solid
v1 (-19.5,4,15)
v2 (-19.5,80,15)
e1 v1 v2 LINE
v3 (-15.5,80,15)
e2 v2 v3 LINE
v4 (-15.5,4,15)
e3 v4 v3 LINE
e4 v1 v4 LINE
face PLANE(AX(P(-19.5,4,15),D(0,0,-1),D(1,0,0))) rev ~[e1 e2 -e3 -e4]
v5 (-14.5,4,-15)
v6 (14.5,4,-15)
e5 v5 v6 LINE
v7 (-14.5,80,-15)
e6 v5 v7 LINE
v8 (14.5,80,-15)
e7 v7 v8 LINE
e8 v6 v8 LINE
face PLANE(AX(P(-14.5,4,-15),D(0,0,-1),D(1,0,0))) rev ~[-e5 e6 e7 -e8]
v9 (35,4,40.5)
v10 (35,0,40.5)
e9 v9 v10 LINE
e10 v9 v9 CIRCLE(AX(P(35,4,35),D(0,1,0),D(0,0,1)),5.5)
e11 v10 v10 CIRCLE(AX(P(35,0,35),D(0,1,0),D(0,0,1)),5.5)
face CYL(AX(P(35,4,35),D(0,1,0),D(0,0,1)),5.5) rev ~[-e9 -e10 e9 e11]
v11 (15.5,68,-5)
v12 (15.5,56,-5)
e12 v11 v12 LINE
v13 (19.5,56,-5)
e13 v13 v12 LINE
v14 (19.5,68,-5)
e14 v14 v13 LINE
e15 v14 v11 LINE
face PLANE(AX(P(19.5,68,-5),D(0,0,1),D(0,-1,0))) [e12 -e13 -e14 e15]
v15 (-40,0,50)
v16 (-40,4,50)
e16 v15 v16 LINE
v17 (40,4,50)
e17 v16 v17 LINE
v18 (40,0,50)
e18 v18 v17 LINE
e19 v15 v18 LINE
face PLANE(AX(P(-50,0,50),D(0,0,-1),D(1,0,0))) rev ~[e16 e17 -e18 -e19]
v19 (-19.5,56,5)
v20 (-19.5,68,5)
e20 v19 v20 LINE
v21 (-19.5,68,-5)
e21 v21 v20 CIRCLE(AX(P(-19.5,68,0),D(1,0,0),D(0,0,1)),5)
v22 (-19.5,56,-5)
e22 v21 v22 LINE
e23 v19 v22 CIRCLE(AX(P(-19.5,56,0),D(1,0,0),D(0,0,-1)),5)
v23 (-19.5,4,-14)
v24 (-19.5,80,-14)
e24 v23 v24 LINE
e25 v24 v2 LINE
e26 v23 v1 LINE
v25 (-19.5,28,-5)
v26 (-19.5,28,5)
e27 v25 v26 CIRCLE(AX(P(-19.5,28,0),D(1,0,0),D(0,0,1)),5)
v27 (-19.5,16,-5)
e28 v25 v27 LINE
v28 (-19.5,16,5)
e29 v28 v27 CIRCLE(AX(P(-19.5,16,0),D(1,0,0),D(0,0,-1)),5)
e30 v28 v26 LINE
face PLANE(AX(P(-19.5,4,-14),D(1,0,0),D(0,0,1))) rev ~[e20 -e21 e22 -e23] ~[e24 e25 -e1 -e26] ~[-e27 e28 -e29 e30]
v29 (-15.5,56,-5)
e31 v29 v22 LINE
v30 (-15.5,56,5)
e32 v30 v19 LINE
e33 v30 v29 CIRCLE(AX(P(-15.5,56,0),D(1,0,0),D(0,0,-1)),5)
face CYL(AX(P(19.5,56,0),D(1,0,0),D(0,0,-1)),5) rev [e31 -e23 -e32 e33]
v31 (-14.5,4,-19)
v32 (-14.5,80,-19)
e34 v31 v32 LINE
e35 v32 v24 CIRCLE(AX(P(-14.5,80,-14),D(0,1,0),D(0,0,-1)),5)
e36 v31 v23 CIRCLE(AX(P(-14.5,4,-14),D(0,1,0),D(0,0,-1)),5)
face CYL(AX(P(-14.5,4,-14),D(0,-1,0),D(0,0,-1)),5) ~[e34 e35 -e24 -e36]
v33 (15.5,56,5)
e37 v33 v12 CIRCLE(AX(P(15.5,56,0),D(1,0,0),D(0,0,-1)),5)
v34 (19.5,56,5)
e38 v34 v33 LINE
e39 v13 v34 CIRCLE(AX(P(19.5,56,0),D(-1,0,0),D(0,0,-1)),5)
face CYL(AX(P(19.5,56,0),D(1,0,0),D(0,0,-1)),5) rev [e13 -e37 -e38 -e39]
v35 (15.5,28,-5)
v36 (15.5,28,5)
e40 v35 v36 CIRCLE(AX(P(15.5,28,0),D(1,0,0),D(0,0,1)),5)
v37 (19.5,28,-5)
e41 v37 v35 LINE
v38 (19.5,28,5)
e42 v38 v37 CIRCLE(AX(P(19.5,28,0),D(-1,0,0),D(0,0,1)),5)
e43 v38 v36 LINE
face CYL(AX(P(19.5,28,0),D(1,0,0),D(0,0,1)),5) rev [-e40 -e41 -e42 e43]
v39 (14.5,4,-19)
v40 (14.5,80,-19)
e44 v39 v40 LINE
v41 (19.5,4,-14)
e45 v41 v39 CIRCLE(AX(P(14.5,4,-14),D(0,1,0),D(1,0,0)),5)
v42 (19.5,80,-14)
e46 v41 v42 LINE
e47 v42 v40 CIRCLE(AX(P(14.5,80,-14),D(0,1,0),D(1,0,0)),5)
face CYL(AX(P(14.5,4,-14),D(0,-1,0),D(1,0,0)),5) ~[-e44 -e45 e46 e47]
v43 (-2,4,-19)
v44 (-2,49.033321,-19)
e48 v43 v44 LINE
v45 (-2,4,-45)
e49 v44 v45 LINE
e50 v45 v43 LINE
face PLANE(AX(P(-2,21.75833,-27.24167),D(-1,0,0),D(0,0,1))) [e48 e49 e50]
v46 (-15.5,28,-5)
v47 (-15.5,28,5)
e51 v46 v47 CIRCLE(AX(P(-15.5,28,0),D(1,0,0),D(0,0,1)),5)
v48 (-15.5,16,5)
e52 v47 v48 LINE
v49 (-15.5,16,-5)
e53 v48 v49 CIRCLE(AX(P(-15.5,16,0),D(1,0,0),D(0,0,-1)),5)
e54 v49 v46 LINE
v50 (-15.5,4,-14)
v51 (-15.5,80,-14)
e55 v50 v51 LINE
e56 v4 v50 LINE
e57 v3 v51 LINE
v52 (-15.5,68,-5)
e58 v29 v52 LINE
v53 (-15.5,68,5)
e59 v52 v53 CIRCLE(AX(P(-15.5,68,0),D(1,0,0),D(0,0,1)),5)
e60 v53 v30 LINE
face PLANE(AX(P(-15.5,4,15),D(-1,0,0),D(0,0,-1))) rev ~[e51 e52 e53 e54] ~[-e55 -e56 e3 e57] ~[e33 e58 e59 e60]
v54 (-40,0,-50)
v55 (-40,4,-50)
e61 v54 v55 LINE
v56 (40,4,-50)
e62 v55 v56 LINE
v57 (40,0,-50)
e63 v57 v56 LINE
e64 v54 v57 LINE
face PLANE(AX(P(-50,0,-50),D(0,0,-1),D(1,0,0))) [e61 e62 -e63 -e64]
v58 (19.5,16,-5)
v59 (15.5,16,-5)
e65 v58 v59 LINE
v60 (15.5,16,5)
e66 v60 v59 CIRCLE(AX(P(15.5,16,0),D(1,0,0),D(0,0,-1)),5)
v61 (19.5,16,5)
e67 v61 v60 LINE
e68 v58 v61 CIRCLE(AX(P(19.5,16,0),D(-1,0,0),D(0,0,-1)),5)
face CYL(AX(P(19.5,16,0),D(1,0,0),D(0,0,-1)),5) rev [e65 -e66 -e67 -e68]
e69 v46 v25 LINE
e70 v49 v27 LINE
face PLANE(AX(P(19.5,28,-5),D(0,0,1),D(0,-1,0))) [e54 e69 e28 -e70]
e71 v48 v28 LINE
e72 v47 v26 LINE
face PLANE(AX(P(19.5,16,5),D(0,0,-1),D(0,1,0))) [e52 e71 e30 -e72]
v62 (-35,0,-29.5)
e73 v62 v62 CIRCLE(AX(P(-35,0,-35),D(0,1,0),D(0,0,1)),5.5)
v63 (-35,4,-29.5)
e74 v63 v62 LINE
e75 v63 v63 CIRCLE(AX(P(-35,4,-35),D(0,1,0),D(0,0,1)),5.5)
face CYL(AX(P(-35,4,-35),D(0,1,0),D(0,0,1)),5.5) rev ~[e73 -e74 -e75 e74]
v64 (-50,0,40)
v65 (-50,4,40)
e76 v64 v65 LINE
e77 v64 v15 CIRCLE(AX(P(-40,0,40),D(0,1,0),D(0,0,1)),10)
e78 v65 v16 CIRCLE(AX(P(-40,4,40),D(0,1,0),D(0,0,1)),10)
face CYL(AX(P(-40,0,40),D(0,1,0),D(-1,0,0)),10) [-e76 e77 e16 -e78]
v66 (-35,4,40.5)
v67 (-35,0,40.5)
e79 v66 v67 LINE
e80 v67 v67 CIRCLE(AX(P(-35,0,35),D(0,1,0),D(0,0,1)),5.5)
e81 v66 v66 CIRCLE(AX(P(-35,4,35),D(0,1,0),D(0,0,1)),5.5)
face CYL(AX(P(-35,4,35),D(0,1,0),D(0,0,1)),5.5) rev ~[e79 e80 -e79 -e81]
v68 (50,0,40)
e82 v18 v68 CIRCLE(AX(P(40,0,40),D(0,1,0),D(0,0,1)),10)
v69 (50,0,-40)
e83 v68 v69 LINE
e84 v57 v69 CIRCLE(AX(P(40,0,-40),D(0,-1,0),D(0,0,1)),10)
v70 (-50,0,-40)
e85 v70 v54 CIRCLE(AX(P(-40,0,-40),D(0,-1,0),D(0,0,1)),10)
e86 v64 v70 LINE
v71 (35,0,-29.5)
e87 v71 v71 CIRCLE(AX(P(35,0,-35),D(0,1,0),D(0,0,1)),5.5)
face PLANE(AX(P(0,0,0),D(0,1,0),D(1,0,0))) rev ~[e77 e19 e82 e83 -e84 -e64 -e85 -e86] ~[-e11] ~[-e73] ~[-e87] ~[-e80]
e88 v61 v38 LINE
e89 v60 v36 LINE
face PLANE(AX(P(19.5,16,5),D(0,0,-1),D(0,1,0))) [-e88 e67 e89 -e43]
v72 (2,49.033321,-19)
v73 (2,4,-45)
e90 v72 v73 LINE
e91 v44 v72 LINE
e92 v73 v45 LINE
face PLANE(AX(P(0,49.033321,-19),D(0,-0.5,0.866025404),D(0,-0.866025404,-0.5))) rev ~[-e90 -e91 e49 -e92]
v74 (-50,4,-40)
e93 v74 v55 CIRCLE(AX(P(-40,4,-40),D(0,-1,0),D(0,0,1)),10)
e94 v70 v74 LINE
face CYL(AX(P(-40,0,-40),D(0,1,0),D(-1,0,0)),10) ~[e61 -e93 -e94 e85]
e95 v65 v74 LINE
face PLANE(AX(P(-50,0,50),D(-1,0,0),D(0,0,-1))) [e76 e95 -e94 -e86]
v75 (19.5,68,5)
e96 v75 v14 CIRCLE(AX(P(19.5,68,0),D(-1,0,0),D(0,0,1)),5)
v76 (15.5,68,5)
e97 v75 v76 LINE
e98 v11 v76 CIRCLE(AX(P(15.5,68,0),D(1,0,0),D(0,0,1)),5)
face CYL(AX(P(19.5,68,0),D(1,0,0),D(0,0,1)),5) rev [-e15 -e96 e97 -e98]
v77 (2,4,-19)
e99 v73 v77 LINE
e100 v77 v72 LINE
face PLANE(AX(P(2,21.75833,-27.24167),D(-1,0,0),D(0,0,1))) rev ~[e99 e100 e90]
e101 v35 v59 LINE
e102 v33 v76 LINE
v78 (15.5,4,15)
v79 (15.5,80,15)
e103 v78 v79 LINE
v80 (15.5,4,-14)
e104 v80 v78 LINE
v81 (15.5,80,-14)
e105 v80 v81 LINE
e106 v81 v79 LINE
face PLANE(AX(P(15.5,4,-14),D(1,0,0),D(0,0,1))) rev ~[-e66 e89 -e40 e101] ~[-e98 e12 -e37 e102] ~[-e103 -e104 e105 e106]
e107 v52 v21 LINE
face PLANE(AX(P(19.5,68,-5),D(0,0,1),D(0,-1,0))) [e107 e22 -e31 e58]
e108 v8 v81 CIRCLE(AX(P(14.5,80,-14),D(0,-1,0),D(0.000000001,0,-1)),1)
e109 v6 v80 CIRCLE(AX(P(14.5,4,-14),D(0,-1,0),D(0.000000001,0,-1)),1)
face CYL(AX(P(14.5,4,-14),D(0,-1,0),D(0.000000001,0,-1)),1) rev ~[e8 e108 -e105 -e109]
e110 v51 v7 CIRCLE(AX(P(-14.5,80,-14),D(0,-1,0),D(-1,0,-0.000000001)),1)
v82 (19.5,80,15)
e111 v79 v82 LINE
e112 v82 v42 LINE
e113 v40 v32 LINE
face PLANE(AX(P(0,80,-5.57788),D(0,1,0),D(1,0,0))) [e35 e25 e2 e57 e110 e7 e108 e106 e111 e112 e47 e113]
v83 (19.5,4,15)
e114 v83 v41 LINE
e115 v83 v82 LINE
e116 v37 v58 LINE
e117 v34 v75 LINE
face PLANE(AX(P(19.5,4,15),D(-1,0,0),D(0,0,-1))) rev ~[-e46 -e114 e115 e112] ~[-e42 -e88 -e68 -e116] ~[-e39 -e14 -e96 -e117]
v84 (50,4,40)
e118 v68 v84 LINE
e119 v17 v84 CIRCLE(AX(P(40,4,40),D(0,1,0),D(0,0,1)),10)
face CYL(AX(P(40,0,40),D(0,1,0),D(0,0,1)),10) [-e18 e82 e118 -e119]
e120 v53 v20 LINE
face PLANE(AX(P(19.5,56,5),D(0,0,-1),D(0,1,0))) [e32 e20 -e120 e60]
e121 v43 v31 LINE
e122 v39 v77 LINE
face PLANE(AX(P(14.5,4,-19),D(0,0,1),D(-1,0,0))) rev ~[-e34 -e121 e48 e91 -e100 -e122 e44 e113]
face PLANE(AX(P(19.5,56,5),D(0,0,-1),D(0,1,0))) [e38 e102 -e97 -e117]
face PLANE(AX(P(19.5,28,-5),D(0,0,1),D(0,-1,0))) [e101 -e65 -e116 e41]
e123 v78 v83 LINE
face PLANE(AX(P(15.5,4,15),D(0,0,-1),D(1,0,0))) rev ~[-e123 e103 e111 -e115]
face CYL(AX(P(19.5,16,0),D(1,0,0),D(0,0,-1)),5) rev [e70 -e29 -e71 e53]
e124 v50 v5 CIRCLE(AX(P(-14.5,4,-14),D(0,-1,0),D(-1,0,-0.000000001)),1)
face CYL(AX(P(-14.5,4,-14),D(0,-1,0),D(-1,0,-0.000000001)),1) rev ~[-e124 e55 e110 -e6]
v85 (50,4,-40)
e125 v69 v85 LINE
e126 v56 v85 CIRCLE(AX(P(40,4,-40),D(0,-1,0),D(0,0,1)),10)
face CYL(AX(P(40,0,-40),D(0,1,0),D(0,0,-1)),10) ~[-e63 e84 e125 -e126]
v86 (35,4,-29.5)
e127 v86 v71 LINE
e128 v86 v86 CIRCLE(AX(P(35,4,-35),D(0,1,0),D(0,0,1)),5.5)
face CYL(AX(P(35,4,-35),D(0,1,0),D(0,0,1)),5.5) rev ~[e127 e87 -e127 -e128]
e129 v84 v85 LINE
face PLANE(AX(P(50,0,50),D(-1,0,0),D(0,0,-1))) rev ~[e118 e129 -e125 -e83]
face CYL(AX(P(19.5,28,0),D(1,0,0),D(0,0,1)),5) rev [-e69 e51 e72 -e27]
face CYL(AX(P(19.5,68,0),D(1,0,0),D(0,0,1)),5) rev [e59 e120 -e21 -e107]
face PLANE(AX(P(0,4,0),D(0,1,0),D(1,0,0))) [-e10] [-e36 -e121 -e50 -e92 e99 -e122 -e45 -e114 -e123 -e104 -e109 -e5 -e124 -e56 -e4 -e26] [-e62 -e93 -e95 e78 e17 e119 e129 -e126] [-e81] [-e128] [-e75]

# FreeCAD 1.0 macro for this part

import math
import FreeCAD as App
import Part
import Sketcher
from FreeCAD import Vector
Q = App.Units.Quantity


def edges_at(feature, points):
    """Names of the edges that pass closest to the given points."""
    edges = feature.Shape.Edges
    near = lambda p: min(range(len(edges)), key=lambda i: edges[i].distToShape(Part.Vertex(*p))[0])
    return sorted({f"Edge{near(p) + 1}" for p in points})


def add_polygon(sketch, points):
    """Adds a closed chain of lines whose ends are joined by coincident constraints."""
    first, n = sketch.GeometryCount, len(points)
    for a, b in zip(points, points[1:] + points[:1]):
        sketch.addGeometry(Part.LineSegment(App.Vector(*a, 0), App.Vector(*b, 0)), False)
    for i in range(n):
        sketch.addConstraint(Sketcher.Constraint("Coincident", first + i, 2, first + (i + 1) % n, 1))

doc = App.newDocument("Part")
body = doc.addObject("PartDesign::Body", "Body")

# Sketch on XZ plane
sketch1 = body.newObject("Sketcher::SketchObject", "Sketch")
sketch1.AttachmentSupport = (doc.getObject("XZ_Plane"), [""])
sketch1.MapMode = "FlatFace"
add_polygon(sketch1, [(-50, -50), (-50, 50), (50, 50), (50, -50)])  # lines 0-3
sketch1.addConstraint([
    Sketcher.Constraint("Vertical", 0),
    Sketcher.Constraint("Horizontal", 1),
    Sketcher.Constraint("Vertical", 2),
    Sketcher.Constraint("Horizontal", 3),
    Sketcher.Constraint("Symmetric", 0, 2, 2, 2, -1, 1),
    Sketcher.Constraint("Equal", 3, 0),
    Sketcher.Constraint("DistanceX", 1, 1, 1, 2, 100.0),
])
pad1 = body.newObject("PartDesign::Pad", "Pad")
pad1.Profile = sketch1
pad1.Length = 4
pad1.Reversed = True

# Sketch on XZ plane
sketch2 = body.newObject("Sketcher::SketchObject", "Sketch001")
sketch2.AttachmentSupport = (doc.getObject("XZ_Plane"), [""])
sketch2.MapMode = "FlatFace"
sketch2.AttachmentOffset = App.Placement(Vector(0, 0, -4), App.Rotation())
sketch2.addGeometry([
    Part.LineSegment(Vector(-15.5, 15, 0), Vector(-15.5, -14, 0)),  # 0
    Part.ArcOfCircle(Part.Circle(Vector(-14.5, -14, 0), Vector(0, 0, 1), 1), math.radians(-180), math.radians(-90)),  # 1
    Part.LineSegment(Vector(-14.5, -15, 0), Vector(14.5, -15, 0)),  # 2
    Part.ArcOfCircle(Part.Circle(Vector(14.5, -14, 0), Vector(0, 0, 1), 1), math.radians(-90), math.radians(0)),  # 3
    Part.LineSegment(Vector(15.5, -14, 0), Vector(15.5, 15, 0)),  # 4
    Part.LineSegment(Vector(15.5, 15, 0), Vector(19.5, 15, 0)),  # 5
    Part.LineSegment(Vector(19.5, 15, 0), Vector(19.5, -14, 0)),  # 6
    Part.ArcOfCircle(Part.Circle(Vector(14.5, -14, 0), Vector(0, 0, 1), 5), math.radians(-90), math.radians(0)),  # 7
    Part.LineSegment(Vector(14.5, -19, 0), Vector(-14.5, -19, 0)),  # 8
    Part.ArcOfCircle(Part.Circle(Vector(-14.5, -14, 0), Vector(0, 0, 1), 5), math.radians(180), math.radians(270)),  # 9
    Part.LineSegment(Vector(-19.5, -14, 0), Vector(-19.5, 15, 0)),  # 10
    Part.LineSegment(Vector(-19.5, 15, 0), Vector(-15.5, 15, 0)),  # 11
], False)
sketch2.addConstraint([
    Sketcher.Constraint("Tangent", 0, 2, 1, 1),
    Sketcher.Constraint("Tangent", 1, 2, 2, 1),
    Sketcher.Constraint("Tangent", 2, 2, 3, 1),
    Sketcher.Constraint("Tangent", 3, 2, 4, 1),
    Sketcher.Constraint("Coincident", 4, 2, 5, 1),
    Sketcher.Constraint("Coincident", 5, 2, 6, 1),
    Sketcher.Constraint("Tangent", 6, 2, 7, 2),
    Sketcher.Constraint("Tangent", 7, 1, 8, 1),
    Sketcher.Constraint("Tangent", 8, 2, 9, 2),
    Sketcher.Constraint("Tangent", 9, 1, 10, 1),
    Sketcher.Constraint("Coincident", 10, 2, 11, 1),
    Sketcher.Constraint("Coincident", 11, 2, 0, 1),
    Sketcher.Constraint("Vertical", 0),
    Sketcher.Constraint("Horizontal", 2),
    Sketcher.Constraint("Vertical", 4),
    Sketcher.Constraint("Horizontal", 5),
    Sketcher.Constraint("Vertical", 6),
    Sketcher.Constraint("Horizontal", 8),
    Sketcher.Constraint("Vertical", 10),
    Sketcher.Constraint("Horizontal", 11),
    Sketcher.Constraint("Coincident", 7, 3, 3, 3),
    Sketcher.Constraint("Coincident", 9, 3, 1, 3),
    Sketcher.Constraint("Equal", 1, 3),
    Sketcher.Constraint("Symmetric", 5, 2, 10, 2, -2),
    Sketcher.Constraint("Equal", 8, 0),
    Sketcher.Constraint("Radius", 1, 1.0),
    Sketcher.Constraint("Radius", 7, 5.0),
    Sketcher.Constraint("DistanceX", 2, 1, 2, 2, 29.0),
    Sketcher.Constraint("DistanceY", 1, 3, -1, 1, 14.0),
])
pad2 = body.newObject("PartDesign::Pad", "Pad001")
pad2.Profile = sketch2
pad2.Length = 76
pad2.Reversed = True

# Sketch on YZ plane
sketch3 = body.newObject("Sketcher::SketchObject", "Sketch002")
sketch3.AttachmentSupport = (doc.getObject("YZ_Plane"), [""])
sketch3.MapMode = "FlatFace"
add_polygon(sketch3, [(4, -45), (49, -19), (4, -19)])  # lines 0-2
sketch3.addConstraint([
    Sketcher.Constraint("Horizontal", 1),
    Sketcher.Constraint("Vertical", 2),
    Sketcher.Constraint("DistanceY", 2, 2, 2, 1, 26.0),
    Sketcher.Constraint("Angle", 0, Q("30 deg")),
    Sketcher.Constraint("DistanceY", 0, 2, -1, 1, 19.0),
    Sketcher.Constraint("DistanceX", -1, 1, 1, 2, 4.0),
])
pad3 = body.newObject("PartDesign::Pad", "Pad002")
pad3.Profile = sketch3
pad3.Length = 4
pad3.Midplane = True

# Sketch on YZ plane
sketch4 = body.newObject("Sketcher::SketchObject", "Sketch003")
sketch4.AttachmentSupport = (doc.getObject("YZ_Plane"), [""])
sketch4.MapMode = "FlatFace"
sketch4.AttachmentOffset = App.Placement(Vector(0, 0, 19.5), App.Rotation())
sketch4.addGeometry([
    Part.LineSegment(Vector(56, -5, 0), Vector(68, -5, 0)),  # 0
    Part.ArcOfCircle(Part.Circle(Vector(68, 0, 0), Vector(0, 0, 1), 5), math.radians(-90), math.radians(90)),  # 1
    Part.LineSegment(Vector(68, 5, 0), Vector(56, 5, 0)),  # 2
    Part.ArcOfCircle(Part.Circle(Vector(56, 0, 0), Vector(0, 0, 1), 5), math.radians(90), math.radians(270)),  # 3
    Part.LineSegment(Vector(16, -5, 0), Vector(28, -5, 0)),  # 4
    Part.ArcOfCircle(Part.Circle(Vector(28, 0, 0), Vector(0, 0, 1), 5), math.radians(-90), math.radians(90)),  # 5
    Part.LineSegment(Vector(28, 5, 0), Vector(16, 5, 0)),  # 6
    Part.ArcOfCircle(Part.Circle(Vector(16, 0, 0), Vector(0, 0, 1), 5), math.radians(90), math.radians(270)),  # 7
], False)
sketch4.addConstraint([
    Sketcher.Constraint("Tangent", 0, 2, 1, 1),
    Sketcher.Constraint("Tangent", 1, 2, 2, 1),
    Sketcher.Constraint("Tangent", 2, 2, 3, 1),
    Sketcher.Constraint("Tangent", 3, 2, 0, 1),
    Sketcher.Constraint("Tangent", 4, 2, 5, 1),
    Sketcher.Constraint("Tangent", 5, 2, 6, 1),
    Sketcher.Constraint("Tangent", 6, 2, 7, 1),
    Sketcher.Constraint("Tangent", 7, 2, 4, 1),
    Sketcher.Constraint("Horizontal", 0),
    Sketcher.Constraint("Horizontal", 2),
    Sketcher.Constraint("Horizontal", 4),
    Sketcher.Constraint("Horizontal", 6),
    Sketcher.Constraint("Equal", 3, 5),
    Sketcher.Constraint("PointOnObject", 1, 3, -1),
    Sketcher.Constraint("PointOnObject", 5, 3, -1),
    Sketcher.Constraint("Equal", 2, 4),
    Sketcher.Constraint("Radius", 1, 5.0),
    Sketcher.Constraint("DistanceX", 0, 1, 0, 2, 12.0),
    Sketcher.Constraint("DistanceX", -1, 1, 1, 3, 68.0),
    Sketcher.Constraint("DistanceX", -1, 1, 5, 3, 28.0),
])
pocket1 = body.newObject("PartDesign::Pocket", "Pocket")
pocket1.Profile = sketch4
pocket1.Type = "ThroughAll"

# Sketch on XZ plane
sketch5 = body.newObject("Sketcher::SketchObject", "Sketch004")
sketch5.AttachmentSupport = (doc.getObject("XZ_Plane"), [""])
sketch5.MapMode = "FlatFace"
sketch5.AttachmentOffset = App.Placement(Vector(0, 0, -4), App.Rotation())
sketch5.addGeometry([
    Part.Circle(Vector(-35, -35, 0), Vector(0, 0, 1), 6),
    Part.Circle(Vector(-35, 35, 0), Vector(0, 0, 1), 6),
    Part.Circle(Vector(35, -35, 0), Vector(0, 0, 1), 6),
    Part.Circle(Vector(35, 35, 0), Vector(0, 0, 1), 6),
], False)
sketch5.addConstraint([
    Sketcher.Constraint("Equal", 0, 1),
    Sketcher.Constraint("Equal", 1, 2),
    Sketcher.Constraint("Equal", 2, 3),
    Sketcher.Constraint("Symmetric", 1, 3, 2, 3, -1, 1),
    Sketcher.Constraint("Symmetric", 0, 3, 3, 3, -1, 1),
    Sketcher.Constraint("Symmetric", 0, 3, 2, 3, -2),
    Sketcher.Constraint("Diameter", 0, 11.0),
    Sketcher.Constraint("DistanceX", 0, 3, -1, 1, 35.0),
    Sketcher.Constraint("DistanceY", 0, 3, -1, 1, 35.0),
])
pocket2 = body.newObject("PartDesign::Pocket", "Pocket001")
pocket2.Profile = sketch5
pocket2.Type = "ThroughAll"
pocket2.Reversed = True
doc.recompute()

fillet = body.newObject("PartDesign::Fillet", "Fillet")
fillet.Base = (pocket2, edges_at(pocket2, [
    (50, 2, 50),
    (-50, 2, 50),
    (-50, 2, -50),
    (50, 2, -50),
]))
fillet.Radius = 10

doc.recompute()
